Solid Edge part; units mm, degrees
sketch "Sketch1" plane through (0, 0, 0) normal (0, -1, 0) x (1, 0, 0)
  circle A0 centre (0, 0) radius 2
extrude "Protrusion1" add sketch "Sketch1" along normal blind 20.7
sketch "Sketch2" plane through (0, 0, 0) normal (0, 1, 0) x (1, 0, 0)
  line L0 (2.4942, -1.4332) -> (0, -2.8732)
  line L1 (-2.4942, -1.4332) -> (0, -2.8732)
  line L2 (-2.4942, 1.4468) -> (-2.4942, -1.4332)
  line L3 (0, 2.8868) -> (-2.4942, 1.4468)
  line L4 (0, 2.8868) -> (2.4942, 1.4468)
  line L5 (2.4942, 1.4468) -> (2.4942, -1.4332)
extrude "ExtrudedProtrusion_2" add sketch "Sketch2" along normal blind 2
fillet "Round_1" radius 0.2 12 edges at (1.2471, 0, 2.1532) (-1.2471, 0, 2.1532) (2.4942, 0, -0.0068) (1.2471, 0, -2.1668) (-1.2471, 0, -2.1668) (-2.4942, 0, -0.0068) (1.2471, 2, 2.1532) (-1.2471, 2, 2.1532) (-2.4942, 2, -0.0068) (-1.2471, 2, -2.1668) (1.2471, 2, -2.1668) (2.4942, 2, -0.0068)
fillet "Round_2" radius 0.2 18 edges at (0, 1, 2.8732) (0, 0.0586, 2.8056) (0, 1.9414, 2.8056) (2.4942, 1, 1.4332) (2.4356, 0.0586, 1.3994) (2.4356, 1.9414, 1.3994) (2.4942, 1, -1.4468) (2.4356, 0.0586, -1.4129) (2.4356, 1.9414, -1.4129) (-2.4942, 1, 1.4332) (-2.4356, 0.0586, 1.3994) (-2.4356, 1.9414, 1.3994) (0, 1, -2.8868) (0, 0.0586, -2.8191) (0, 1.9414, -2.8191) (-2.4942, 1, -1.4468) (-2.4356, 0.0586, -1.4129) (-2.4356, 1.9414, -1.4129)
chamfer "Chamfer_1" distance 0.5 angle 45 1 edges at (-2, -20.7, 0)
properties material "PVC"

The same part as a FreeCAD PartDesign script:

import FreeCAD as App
import Part
import Sketcher

V = App.Vector
Q = App.Units.Quantity


def edges_at(feature, points):
    """Names of the edges that pass closest to the given points."""
    edges = feature.Shape.Edges
    near = lambda p: min(range(len(edges)), key=lambda i: edges[i].distToShape(Part.Vertex(*p))[0])
    return sorted({f"Edge{near(p) + 1}" for p in points})


def add_polygon(sketch, points):
    """Adds a closed chain of lines whose ends are joined by coincident constraints."""
    first, n = sketch.GeometryCount, len(points)
    for a, b in zip(points, points[1:] + points[:1]):
        sketch.addGeometry(Part.LineSegment(App.Vector(*a, 0), App.Vector(*b, 0)), False)
    for i in range(n):
        sketch.addConstraint(Sketcher.Constraint("Coincident", first + i, 2, first + (i + 1) % n, 1))

doc = App.newDocument("Part")
body = doc.addObject("PartDesign::Body", "Body")

# Sketch on XZ plane
sketch1 = body.newObject("Sketcher::SketchObject", "Sketch")
sketch1.AttachmentSupport = (doc.getObject("XZ_Plane"), [""])
sketch1.MapMode = "FlatFace"
sketch1.addGeometry(Part.Circle(V(0, 0, 0), V(0, 0, 1), 2), False)
sketch1.addConstraint([
    Sketcher.Constraint("Coincident", 0, 3, -1, 1),
    Sketcher.Constraint("Diameter", 0, Q("4 mm")),
])
pad1 = body.newObject("PartDesign::Pad", "Pad")
pad1.Profile = sketch1
pad1.Length = 20.7

# Sketch on XZ plane
sketch2 = body.newObject("Sketcher::SketchObject", "Sketch001")
sketch2.AttachmentSupport = (doc.getObject("XZ_Plane"), [""])
sketch2.MapMode = "FlatFace"
add_polygon(sketch2, [(0, 2.9), (2.5, 1.4), (2.5, -1.4), (0, -2.9), (-2.5, -1.4), (-2.5, 1.4)])  # lines 0-5
sketch2.addConstraint([
    Sketcher.Constraint("Vertical", 1),
    Sketcher.Constraint("Vertical", 4),
    Sketcher.Constraint("Symmetric", 1, 2, 3, 2, -2),
    Sketcher.Constraint("PointOnObject", 2, 2, -2),
    Sketcher.Constraint("PointOnObject", 5, 2, -2),
    Sketcher.Constraint("Parallel", 0, 3),
    Sketcher.Constraint("Parallel", 2, 5),
    Sketcher.Constraint("Angle", 0, Q("-29.9995 deg")),
    Sketcher.Constraint("DistanceY", 1, 2, 1, 1, Q("2.88 mm")),
    Sketcher.Constraint("Distance", 0, Q("2.88 mm")),
    Sketcher.Constraint("DistanceY", -1, 1, 0, 2, Q("1.4332 mm")),
])
pad2 = body.newObject("PartDesign::Pad", "Pad001")
pad2.Profile = sketch2
pad2.Length = 2
pad2.Reversed = True
doc.recompute()

fillet = body.newObject("PartDesign::Fillet", "Fillet")
fillet.Base = (pad2, edges_at(pad2, [
    (1.247, 0, 2.153),
    (-1.247, 0, 2.153),
    (2.494, 0, -0.007),
    (1.247, 0, -2.167),
    (-1.247, 0, -2.167),
    (-2.494, 0, -0.007),
    (1.247, 2, 2.153),
    (-1.247, 2, 2.153),
    (-2.494, 2, -0.007),
    (-1.247, 2, -2.167),
    (1.247, 2, -2.167),
    (2.494, 2, -0.007),
]))
fillet.Radius = 0.2
doc.recompute()

fillet2 = body.newObject("PartDesign::Fillet", "Fillet001")
fillet2.Base = (fillet, edges_at(fillet, [
    (0, 1, 2.873),
    (0, 0.059, 2.806),
    (0, 1.941, 2.806),
    (2.494, 1, 1.433),
    (2.436, 0.059, 1.399),
    (2.436, 1.941, 1.399),
    (2.494, 1, -1.447),
    (2.436, 0.059, -1.413),
    (2.436, 1.941, -1.413),
    (-2.494, 1, 1.433),
    (-2.436, 0.059, 1.399),
    (-2.436, 1.941, 1.399),
    (0, 1, -2.887),
    (0, 0.059, -2.819),
    (0, 1.941, -2.819),
    (-2.494, 1, -1.447),
    (-2.436, 0.059, -1.413),
    (-2.436, 1.941, -1.413),
]))
fillet2.Radius = 0.2
doc.recompute()

chamfer = body.newObject("PartDesign::Chamfer", "Chamfer")
chamfer.Base = (fillet2, edges_at(fillet2, [(-2, -20.7, 0)]))
chamfer.Size = 0.5

doc.recompute()
